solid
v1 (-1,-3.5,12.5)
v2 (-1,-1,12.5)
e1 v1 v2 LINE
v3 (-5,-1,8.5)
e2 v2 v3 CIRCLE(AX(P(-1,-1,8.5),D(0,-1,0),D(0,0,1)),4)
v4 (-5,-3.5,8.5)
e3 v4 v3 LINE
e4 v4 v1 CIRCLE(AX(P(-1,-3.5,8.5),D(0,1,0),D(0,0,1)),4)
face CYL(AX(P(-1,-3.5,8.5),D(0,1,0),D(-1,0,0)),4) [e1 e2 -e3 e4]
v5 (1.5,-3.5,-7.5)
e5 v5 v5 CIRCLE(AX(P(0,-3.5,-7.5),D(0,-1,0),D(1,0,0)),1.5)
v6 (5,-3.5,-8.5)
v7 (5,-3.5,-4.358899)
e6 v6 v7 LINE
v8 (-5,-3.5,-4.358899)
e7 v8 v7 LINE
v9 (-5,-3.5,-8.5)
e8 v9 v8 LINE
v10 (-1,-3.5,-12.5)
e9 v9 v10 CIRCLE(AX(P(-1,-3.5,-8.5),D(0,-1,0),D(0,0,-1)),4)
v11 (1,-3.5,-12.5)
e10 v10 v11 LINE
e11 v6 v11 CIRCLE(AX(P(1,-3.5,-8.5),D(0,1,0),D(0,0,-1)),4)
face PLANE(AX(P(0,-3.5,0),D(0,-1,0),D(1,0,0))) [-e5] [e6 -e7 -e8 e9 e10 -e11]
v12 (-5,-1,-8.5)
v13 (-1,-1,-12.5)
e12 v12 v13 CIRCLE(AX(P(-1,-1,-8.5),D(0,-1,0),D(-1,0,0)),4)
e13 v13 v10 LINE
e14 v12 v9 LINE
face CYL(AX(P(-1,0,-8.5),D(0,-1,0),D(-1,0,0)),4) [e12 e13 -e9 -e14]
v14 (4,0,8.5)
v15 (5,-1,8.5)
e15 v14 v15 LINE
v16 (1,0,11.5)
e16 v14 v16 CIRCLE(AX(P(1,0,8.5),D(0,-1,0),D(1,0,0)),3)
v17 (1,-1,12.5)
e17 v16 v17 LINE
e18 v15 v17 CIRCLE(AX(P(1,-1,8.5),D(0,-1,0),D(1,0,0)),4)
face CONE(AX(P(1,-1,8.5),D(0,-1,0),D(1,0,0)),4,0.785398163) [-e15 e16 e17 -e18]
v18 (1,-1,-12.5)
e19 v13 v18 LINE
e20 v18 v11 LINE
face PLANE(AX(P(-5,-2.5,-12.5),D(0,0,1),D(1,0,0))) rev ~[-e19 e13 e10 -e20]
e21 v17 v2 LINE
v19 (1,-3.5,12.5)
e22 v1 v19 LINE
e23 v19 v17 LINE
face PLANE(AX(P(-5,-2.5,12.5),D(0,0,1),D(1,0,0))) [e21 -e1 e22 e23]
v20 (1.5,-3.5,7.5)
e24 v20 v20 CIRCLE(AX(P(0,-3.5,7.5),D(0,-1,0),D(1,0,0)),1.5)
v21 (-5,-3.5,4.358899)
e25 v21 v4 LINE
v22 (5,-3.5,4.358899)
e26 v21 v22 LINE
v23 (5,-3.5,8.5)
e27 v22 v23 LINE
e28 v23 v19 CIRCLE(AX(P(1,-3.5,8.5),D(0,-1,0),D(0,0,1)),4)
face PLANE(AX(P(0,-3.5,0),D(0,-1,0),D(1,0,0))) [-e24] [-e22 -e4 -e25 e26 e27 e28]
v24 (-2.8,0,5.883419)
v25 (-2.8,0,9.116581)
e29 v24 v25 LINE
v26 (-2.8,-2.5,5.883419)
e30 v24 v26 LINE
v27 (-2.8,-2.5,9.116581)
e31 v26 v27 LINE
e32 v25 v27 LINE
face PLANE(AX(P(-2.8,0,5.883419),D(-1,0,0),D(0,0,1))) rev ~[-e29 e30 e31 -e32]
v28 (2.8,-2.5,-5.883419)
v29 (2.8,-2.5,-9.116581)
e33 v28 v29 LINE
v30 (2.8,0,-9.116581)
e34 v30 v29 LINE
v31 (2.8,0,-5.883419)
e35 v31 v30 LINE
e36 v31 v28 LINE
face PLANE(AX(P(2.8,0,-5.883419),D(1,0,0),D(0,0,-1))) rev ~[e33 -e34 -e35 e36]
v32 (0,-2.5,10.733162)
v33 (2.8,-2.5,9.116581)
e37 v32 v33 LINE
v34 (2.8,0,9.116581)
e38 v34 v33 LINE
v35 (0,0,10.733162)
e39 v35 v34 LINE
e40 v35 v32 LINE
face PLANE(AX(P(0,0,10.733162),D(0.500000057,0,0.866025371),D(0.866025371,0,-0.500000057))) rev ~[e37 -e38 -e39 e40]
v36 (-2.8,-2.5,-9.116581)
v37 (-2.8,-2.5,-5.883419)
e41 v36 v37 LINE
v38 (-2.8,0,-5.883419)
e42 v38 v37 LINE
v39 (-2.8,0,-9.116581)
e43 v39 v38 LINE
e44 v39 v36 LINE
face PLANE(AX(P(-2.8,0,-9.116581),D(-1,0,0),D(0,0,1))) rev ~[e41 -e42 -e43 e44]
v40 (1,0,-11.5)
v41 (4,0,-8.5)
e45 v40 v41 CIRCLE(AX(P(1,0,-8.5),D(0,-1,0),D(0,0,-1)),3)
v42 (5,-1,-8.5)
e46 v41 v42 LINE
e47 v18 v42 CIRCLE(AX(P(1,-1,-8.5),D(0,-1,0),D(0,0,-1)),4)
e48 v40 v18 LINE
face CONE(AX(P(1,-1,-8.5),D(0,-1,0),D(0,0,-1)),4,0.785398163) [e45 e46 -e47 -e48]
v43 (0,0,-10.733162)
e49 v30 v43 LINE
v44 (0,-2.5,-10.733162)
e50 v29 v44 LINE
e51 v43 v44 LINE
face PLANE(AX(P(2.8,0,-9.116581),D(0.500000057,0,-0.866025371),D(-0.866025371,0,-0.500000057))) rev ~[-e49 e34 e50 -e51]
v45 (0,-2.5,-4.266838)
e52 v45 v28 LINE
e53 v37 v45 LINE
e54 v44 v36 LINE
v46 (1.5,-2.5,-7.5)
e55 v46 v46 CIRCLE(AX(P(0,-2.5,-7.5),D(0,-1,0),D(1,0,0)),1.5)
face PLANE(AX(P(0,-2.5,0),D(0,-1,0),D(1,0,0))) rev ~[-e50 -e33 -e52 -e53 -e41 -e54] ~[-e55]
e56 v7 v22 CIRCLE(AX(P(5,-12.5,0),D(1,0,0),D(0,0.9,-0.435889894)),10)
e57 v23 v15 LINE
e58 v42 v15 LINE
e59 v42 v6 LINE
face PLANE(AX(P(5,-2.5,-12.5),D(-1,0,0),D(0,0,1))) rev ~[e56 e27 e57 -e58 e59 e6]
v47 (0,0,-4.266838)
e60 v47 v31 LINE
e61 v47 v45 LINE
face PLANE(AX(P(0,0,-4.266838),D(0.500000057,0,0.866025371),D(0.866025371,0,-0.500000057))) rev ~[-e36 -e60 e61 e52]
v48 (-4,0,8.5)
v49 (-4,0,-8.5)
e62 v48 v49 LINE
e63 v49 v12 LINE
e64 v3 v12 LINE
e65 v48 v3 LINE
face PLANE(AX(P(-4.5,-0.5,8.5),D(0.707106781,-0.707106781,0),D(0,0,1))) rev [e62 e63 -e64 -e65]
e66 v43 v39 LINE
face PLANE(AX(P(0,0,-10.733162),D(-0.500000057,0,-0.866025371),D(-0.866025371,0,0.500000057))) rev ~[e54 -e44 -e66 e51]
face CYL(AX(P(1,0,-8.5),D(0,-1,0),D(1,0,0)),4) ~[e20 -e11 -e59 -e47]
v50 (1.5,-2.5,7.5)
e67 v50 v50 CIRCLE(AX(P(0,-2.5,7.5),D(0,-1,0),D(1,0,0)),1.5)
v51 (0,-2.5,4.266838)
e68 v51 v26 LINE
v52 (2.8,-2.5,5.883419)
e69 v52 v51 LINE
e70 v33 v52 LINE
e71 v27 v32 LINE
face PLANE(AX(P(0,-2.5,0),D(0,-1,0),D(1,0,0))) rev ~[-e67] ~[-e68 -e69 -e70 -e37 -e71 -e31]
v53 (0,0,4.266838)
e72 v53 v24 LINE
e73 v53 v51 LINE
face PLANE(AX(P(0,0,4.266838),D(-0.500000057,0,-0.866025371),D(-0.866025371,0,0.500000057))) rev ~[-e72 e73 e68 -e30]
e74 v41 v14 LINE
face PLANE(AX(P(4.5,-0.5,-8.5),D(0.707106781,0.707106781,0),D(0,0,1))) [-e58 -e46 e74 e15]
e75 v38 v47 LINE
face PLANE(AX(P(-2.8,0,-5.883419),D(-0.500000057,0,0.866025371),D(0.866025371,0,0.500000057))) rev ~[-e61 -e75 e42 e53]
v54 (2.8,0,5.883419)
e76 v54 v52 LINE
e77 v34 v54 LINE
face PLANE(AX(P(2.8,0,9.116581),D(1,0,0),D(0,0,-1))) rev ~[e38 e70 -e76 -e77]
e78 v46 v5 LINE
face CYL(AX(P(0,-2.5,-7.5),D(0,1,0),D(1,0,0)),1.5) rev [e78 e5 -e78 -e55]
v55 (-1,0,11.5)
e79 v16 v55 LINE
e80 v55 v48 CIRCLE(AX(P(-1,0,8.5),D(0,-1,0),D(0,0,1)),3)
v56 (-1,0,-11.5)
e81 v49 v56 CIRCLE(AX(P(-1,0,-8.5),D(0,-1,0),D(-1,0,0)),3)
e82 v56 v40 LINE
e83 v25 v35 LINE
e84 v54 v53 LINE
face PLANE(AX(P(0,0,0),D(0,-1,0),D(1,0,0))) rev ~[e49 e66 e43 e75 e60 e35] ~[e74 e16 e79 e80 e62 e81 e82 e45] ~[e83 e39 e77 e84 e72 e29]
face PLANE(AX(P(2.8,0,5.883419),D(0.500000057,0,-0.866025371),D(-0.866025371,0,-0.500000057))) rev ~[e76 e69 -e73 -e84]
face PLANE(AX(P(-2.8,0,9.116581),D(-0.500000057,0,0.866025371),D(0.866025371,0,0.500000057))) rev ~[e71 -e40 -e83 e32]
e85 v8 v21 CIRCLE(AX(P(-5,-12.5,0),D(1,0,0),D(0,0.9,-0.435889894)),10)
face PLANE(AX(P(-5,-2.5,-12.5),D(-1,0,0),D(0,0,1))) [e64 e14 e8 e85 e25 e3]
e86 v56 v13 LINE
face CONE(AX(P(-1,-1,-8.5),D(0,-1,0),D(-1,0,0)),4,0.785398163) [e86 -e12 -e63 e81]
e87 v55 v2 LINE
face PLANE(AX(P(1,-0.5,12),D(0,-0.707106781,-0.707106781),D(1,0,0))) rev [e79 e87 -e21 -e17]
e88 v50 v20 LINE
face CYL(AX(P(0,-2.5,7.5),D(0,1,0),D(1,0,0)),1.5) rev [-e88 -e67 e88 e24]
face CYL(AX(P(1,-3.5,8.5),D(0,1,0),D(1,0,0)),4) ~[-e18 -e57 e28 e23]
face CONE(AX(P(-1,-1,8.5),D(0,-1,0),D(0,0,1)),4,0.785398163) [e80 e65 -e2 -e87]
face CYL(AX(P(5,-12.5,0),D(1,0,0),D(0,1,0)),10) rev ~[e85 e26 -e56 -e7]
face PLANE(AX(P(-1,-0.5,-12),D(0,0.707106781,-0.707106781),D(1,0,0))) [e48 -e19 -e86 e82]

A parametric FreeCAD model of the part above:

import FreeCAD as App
import Part
import Sketcher
Q = App.Units.Quantity


def edges_at(feature, points):
    """Names of the edges that pass closest to the given points."""
    edges = feature.Shape.Edges
    near = lambda p: min(range(len(edges)), key=lambda i: edges[i].distToShape(Part.Vertex(*p))[0])
    return sorted({f"Edge{near(p) + 1}" for p in points})

doc = App.newDocument("Part")
body = doc.addObject("PartDesign::Body", "Body")

sketch1 = doc.addObject("Sketcher::SketchObject", "Sketch")
body.addObject(sketch1)
sketch1.AttachmentSupport = (doc.XZ_Plane, [""])
sketch1.MapMode = "FlatFace"
sketch1.addGeometry(Part.LineSegment(App.Vector(-5, 12.5, 0), App.Vector(-5, -12.5, 0)), False)
sketch1.addGeometry(Part.LineSegment(App.Vector(-5, -12.5, 0), App.Vector(5, -12.5, 0)), False)
sketch1.addGeometry(Part.LineSegment(App.Vector(5, -12.5, 0), App.Vector(5, 12.5, 0)), False)
sketch1.addGeometry(Part.LineSegment(App.Vector(5, 12.5, 0), App.Vector(-5, 12.5, 0)), False)
sketch1.addGeometry(Part.LineSegment(App.Vector(-2.8, -5.883419, 0), App.Vector(0, -4.266838, 0)), False)
sketch1.addGeometry(Part.LineSegment(App.Vector(0, -4.266838, 0), App.Vector(2.8, -5.883419, 0)), False)
sketch1.addGeometry(Part.LineSegment(App.Vector(2.8, -5.883419, 0), App.Vector(2.8, -9.116581, 0)), False)
sketch1.addGeometry(Part.LineSegment(App.Vector(2.8, -9.116581, 0), App.Vector(0, -10.733162, 0)), False)
sketch1.addGeometry(Part.LineSegment(App.Vector(0, -10.733162, 0), App.Vector(-2.8, -9.116581, 0)), False)
sketch1.addGeometry(Part.LineSegment(App.Vector(-2.8, -9.116581, 0), App.Vector(-2.8, -5.883419, 0)), False)
sketch1.addGeometry(Part.LineSegment(App.Vector(2.8, 9.116581, 0), App.Vector(2.8, 5.883419, 0)), False)
sketch1.addGeometry(Part.LineSegment(App.Vector(2.8, 5.883419, 0), App.Vector(0, 4.266838, 0)), False)
sketch1.addGeometry(Part.LineSegment(App.Vector(0, 4.266838, 0), App.Vector(-2.8, 5.883419, 0)), False)
sketch1.addGeometry(Part.LineSegment(App.Vector(-2.8, 5.883419, 0), App.Vector(-2.8, 9.116581, 0)), False)
sketch1.addGeometry(Part.LineSegment(App.Vector(-2.8, 9.116581, 0), App.Vector(0, 10.733162, 0)), False)
sketch1.addGeometry(Part.LineSegment(App.Vector(0, 10.733162, 0), App.Vector(2.8, 9.116581, 0)), False)
sketch1.addConstraint(Sketcher.Constraint("Coincident", 0, 2, 1, 1))
sketch1.addConstraint(Sketcher.Constraint("Coincident", 1, 2, 2, 1))
sketch1.addConstraint(Sketcher.Constraint("Coincident", 2, 2, 3, 1))
sketch1.addConstraint(Sketcher.Constraint("Coincident", 3, 2, 0, 1))
sketch1.addConstraint(Sketcher.Constraint("Coincident", 4, 2, 5, 1))
sketch1.addConstraint(Sketcher.Constraint("Coincident", 5, 2, 6, 1))
sketch1.addConstraint(Sketcher.Constraint("Coincident", 6, 2, 7, 1))
sketch1.addConstraint(Sketcher.Constraint("Coincident", 7, 2, 8, 1))
sketch1.addConstraint(Sketcher.Constraint("Coincident", 8, 2, 9, 1))
sketch1.addConstraint(Sketcher.Constraint("Coincident", 9, 2, 4, 1))
sketch1.addConstraint(Sketcher.Constraint("Coincident", 10, 2, 11, 1))
sketch1.addConstraint(Sketcher.Constraint("Coincident", 11, 2, 12, 1))
sketch1.addConstraint(Sketcher.Constraint("Coincident", 12, 2, 13, 1))
sketch1.addConstraint(Sketcher.Constraint("Coincident", 13, 2, 14, 1))
sketch1.addConstraint(Sketcher.Constraint("Coincident", 14, 2, 15, 1))
sketch1.addConstraint(Sketcher.Constraint("Coincident", 15, 2, 10, 1))
sketch1.addConstraint(Sketcher.Constraint("Vertical", 0))
sketch1.addConstraint(Sketcher.Constraint("Horizontal", 1))
sketch1.addConstraint(Sketcher.Constraint("Vertical", 2))
sketch1.addConstraint(Sketcher.Constraint("Horizontal", 3))
sketch1.addConstraint(Sketcher.Constraint("Vertical", 6))
sketch1.addConstraint(Sketcher.Constraint("Vertical", 9))
sketch1.addConstraint(Sketcher.Constraint("Vertical", 10))
sketch1.addConstraint(Sketcher.Constraint("Vertical", 13))
sketch1.addConstraint(Sketcher.Constraint("Symmetric", 0, 2, 2, 2, -1, 1))
sketch1.addConstraint(Sketcher.Constraint("Symmetric", 9, 2, 10, 2, -1, 1))
sketch1.addConstraint(Sketcher.Constraint("Symmetric", 4, 2, 11, 2, -1, 1))
sketch1.addConstraint(Sketcher.Constraint("Symmetric", 5, 2, 12, 2, -1, 1))
sketch1.addConstraint(Sketcher.Constraint("Symmetric", 7, 2, 14, 2, -1, 1))
sketch1.addConstraint(Sketcher.Constraint("Symmetric", 6, 2, 8, 2, -2))
sketch1.addConstraint(Sketcher.Constraint("PointOnObject", 4, 2, -2))
sketch1.addConstraint(Sketcher.Constraint("PointOnObject", 7, 2, -2))
sketch1.addConstraint(Sketcher.Constraint("Parallel", 4, 7))
sketch1.addConstraint(Sketcher.Constraint("Parallel", 5, 8))
sketch1.addConstraint(Sketcher.Constraint("Parallel", 11, 14))
sketch1.addConstraint(Sketcher.Constraint("Parallel", 12, 15))
sketch1.addConstraint(Sketcher.Constraint("DistanceX", 1, 1, 1, 2, 10.0))
sketch1.addConstraint(Sketcher.Constraint("DistanceY", 0, 2, 0, 1, 25.0))
sketch1.addConstraint(Sketcher.Constraint("Angle", 4, Q("30.000004 deg")))
sketch1.addConstraint(Sketcher.Constraint("DistanceX", -1, 1, 5, 2, 2.8))
sketch1.addConstraint(Sketcher.Constraint("DistanceY", 6, 2, 6, 1, 3.233162))
sketch1.addConstraint(Sketcher.Constraint("DistanceY", 5, 2, -1, 1, 5.883419))
pad1 = doc.addObject("PartDesign::Pad", "Pad")
body.addObject(pad1)
pad1.Profile = sketch1
pad1.Length = 2.5

sketch2 = doc.addObject("Sketcher::SketchObject", "Sketch001")
body.addObject(sketch2)
sketch2.AttachmentSupport = (doc.XZ_Plane, [""])
sketch2.MapMode = "FlatFace"
sketch2.AttachmentOffset = App.Placement(App.Vector(0, 0, 2.5), App.Rotation())
sketch2.addGeometry(Part.LineSegment(App.Vector(-5, 12.5, 0), App.Vector(-5, -12.5, 0)), False)
sketch2.addGeometry(Part.LineSegment(App.Vector(-5, -12.5, 0), App.Vector(5, -12.5, 0)), False)
sketch2.addGeometry(Part.LineSegment(App.Vector(5, -12.5, 0), App.Vector(5, 12.5, 0)), False)
sketch2.addGeometry(Part.LineSegment(App.Vector(5, 12.5, 0), App.Vector(-5, 12.5, 0)), False)
sketch2.addGeometry(Part.Circle(App.Vector(0, -7.5, 0), App.Vector(0, 0, 1), 1.5), False)
sketch2.addGeometry(Part.Circle(App.Vector(0, 7.5, 0), App.Vector(0, 0, 1), 1.5), False)
sketch2.addConstraint(Sketcher.Constraint("Coincident", 0, 2, 1, 1))
sketch2.addConstraint(Sketcher.Constraint("Coincident", 1, 2, 2, 1))
sketch2.addConstraint(Sketcher.Constraint("Coincident", 2, 2, 3, 1))
sketch2.addConstraint(Sketcher.Constraint("Coincident", 3, 2, 0, 1))
sketch2.addConstraint(Sketcher.Constraint("Vertical", 0))
sketch2.addConstraint(Sketcher.Constraint("Horizontal", 1))
sketch2.addConstraint(Sketcher.Constraint("Vertical", 2))
sketch2.addConstraint(Sketcher.Constraint("Horizontal", 3))
sketch2.addConstraint(Sketcher.Constraint("Equal", 4, 5))
sketch2.addConstraint(Sketcher.Constraint("Symmetric", 4, 3, 5, 3, -1, 1))
sketch2.addConstraint(Sketcher.Constraint("Symmetric", 0, 2, 2, 2, -1, 1))
sketch2.addConstraint(Sketcher.Constraint("PointOnObject", 4, 3, -2))
sketch2.addConstraint(Sketcher.Constraint("Diameter", 4, 3.0))
sketch2.addConstraint(Sketcher.Constraint("DistanceX", 1, 1, 1, 2, 10.0))
sketch2.addConstraint(Sketcher.Constraint("DistanceY", 0, 2, 0, 1, 25.0))
sketch2.addConstraint(Sketcher.Constraint("DistanceY", 4, 3, 5, 3, 15.0))
pad2 = doc.addObject("PartDesign::Pad", "Pad001")
body.addObject(pad2)
pad2.Profile = sketch2
pad2.Length = 1

sketch3 = doc.addObject("Sketcher::SketchObject", "Sketch002")
body.addObject(sketch3)
sketch3.AttachmentSupport = (doc.YZ_Plane, [""])
sketch3.MapMode = "FlatFace"
sketch3.AttachmentOffset = App.Placement(App.Vector(0, 0, 5), App.Rotation())
sketch3.addGeometry(Part.Circle(App.Vector(-12.5, 0, 0), App.Vector(0, 0, 1), 10), False)
sketch3.addConstraint(Sketcher.Constraint("PointOnObject", 0, 3, -1))
sketch3.addConstraint(Sketcher.Constraint("Diameter", 0, 20.0))
sketch3.addConstraint(Sketcher.Constraint("DistanceX", 0, 3, -1, 1, 12.5))
pocket1 = doc.addObject("PartDesign::Pocket", "Pocket")
body.addObject(pocket1)
pocket1.Profile = sketch3
pocket1.Length = 25
doc.recompute()

fillet = doc.addObject("PartDesign::Fillet", "Fillet")
body.addObject(fillet)
fillet.Base = (pocket1, edges_at(pocket1, [
    (5, -1.75, 12.5),
    (-5, -1.75, 12.5),
    (-5, -1.75, -12.5),
    (5, -1.75, -12.5),
]))
fillet.Radius = 4
doc.recompute()

chamfer = doc.addObject("PartDesign::Chamfer", "Chamfer")
body.addObject(chamfer)
chamfer.Base = (fillet, edges_at(fillet, [(5, 0, 0)]))
chamfer.Size = 1

doc.recompute()
